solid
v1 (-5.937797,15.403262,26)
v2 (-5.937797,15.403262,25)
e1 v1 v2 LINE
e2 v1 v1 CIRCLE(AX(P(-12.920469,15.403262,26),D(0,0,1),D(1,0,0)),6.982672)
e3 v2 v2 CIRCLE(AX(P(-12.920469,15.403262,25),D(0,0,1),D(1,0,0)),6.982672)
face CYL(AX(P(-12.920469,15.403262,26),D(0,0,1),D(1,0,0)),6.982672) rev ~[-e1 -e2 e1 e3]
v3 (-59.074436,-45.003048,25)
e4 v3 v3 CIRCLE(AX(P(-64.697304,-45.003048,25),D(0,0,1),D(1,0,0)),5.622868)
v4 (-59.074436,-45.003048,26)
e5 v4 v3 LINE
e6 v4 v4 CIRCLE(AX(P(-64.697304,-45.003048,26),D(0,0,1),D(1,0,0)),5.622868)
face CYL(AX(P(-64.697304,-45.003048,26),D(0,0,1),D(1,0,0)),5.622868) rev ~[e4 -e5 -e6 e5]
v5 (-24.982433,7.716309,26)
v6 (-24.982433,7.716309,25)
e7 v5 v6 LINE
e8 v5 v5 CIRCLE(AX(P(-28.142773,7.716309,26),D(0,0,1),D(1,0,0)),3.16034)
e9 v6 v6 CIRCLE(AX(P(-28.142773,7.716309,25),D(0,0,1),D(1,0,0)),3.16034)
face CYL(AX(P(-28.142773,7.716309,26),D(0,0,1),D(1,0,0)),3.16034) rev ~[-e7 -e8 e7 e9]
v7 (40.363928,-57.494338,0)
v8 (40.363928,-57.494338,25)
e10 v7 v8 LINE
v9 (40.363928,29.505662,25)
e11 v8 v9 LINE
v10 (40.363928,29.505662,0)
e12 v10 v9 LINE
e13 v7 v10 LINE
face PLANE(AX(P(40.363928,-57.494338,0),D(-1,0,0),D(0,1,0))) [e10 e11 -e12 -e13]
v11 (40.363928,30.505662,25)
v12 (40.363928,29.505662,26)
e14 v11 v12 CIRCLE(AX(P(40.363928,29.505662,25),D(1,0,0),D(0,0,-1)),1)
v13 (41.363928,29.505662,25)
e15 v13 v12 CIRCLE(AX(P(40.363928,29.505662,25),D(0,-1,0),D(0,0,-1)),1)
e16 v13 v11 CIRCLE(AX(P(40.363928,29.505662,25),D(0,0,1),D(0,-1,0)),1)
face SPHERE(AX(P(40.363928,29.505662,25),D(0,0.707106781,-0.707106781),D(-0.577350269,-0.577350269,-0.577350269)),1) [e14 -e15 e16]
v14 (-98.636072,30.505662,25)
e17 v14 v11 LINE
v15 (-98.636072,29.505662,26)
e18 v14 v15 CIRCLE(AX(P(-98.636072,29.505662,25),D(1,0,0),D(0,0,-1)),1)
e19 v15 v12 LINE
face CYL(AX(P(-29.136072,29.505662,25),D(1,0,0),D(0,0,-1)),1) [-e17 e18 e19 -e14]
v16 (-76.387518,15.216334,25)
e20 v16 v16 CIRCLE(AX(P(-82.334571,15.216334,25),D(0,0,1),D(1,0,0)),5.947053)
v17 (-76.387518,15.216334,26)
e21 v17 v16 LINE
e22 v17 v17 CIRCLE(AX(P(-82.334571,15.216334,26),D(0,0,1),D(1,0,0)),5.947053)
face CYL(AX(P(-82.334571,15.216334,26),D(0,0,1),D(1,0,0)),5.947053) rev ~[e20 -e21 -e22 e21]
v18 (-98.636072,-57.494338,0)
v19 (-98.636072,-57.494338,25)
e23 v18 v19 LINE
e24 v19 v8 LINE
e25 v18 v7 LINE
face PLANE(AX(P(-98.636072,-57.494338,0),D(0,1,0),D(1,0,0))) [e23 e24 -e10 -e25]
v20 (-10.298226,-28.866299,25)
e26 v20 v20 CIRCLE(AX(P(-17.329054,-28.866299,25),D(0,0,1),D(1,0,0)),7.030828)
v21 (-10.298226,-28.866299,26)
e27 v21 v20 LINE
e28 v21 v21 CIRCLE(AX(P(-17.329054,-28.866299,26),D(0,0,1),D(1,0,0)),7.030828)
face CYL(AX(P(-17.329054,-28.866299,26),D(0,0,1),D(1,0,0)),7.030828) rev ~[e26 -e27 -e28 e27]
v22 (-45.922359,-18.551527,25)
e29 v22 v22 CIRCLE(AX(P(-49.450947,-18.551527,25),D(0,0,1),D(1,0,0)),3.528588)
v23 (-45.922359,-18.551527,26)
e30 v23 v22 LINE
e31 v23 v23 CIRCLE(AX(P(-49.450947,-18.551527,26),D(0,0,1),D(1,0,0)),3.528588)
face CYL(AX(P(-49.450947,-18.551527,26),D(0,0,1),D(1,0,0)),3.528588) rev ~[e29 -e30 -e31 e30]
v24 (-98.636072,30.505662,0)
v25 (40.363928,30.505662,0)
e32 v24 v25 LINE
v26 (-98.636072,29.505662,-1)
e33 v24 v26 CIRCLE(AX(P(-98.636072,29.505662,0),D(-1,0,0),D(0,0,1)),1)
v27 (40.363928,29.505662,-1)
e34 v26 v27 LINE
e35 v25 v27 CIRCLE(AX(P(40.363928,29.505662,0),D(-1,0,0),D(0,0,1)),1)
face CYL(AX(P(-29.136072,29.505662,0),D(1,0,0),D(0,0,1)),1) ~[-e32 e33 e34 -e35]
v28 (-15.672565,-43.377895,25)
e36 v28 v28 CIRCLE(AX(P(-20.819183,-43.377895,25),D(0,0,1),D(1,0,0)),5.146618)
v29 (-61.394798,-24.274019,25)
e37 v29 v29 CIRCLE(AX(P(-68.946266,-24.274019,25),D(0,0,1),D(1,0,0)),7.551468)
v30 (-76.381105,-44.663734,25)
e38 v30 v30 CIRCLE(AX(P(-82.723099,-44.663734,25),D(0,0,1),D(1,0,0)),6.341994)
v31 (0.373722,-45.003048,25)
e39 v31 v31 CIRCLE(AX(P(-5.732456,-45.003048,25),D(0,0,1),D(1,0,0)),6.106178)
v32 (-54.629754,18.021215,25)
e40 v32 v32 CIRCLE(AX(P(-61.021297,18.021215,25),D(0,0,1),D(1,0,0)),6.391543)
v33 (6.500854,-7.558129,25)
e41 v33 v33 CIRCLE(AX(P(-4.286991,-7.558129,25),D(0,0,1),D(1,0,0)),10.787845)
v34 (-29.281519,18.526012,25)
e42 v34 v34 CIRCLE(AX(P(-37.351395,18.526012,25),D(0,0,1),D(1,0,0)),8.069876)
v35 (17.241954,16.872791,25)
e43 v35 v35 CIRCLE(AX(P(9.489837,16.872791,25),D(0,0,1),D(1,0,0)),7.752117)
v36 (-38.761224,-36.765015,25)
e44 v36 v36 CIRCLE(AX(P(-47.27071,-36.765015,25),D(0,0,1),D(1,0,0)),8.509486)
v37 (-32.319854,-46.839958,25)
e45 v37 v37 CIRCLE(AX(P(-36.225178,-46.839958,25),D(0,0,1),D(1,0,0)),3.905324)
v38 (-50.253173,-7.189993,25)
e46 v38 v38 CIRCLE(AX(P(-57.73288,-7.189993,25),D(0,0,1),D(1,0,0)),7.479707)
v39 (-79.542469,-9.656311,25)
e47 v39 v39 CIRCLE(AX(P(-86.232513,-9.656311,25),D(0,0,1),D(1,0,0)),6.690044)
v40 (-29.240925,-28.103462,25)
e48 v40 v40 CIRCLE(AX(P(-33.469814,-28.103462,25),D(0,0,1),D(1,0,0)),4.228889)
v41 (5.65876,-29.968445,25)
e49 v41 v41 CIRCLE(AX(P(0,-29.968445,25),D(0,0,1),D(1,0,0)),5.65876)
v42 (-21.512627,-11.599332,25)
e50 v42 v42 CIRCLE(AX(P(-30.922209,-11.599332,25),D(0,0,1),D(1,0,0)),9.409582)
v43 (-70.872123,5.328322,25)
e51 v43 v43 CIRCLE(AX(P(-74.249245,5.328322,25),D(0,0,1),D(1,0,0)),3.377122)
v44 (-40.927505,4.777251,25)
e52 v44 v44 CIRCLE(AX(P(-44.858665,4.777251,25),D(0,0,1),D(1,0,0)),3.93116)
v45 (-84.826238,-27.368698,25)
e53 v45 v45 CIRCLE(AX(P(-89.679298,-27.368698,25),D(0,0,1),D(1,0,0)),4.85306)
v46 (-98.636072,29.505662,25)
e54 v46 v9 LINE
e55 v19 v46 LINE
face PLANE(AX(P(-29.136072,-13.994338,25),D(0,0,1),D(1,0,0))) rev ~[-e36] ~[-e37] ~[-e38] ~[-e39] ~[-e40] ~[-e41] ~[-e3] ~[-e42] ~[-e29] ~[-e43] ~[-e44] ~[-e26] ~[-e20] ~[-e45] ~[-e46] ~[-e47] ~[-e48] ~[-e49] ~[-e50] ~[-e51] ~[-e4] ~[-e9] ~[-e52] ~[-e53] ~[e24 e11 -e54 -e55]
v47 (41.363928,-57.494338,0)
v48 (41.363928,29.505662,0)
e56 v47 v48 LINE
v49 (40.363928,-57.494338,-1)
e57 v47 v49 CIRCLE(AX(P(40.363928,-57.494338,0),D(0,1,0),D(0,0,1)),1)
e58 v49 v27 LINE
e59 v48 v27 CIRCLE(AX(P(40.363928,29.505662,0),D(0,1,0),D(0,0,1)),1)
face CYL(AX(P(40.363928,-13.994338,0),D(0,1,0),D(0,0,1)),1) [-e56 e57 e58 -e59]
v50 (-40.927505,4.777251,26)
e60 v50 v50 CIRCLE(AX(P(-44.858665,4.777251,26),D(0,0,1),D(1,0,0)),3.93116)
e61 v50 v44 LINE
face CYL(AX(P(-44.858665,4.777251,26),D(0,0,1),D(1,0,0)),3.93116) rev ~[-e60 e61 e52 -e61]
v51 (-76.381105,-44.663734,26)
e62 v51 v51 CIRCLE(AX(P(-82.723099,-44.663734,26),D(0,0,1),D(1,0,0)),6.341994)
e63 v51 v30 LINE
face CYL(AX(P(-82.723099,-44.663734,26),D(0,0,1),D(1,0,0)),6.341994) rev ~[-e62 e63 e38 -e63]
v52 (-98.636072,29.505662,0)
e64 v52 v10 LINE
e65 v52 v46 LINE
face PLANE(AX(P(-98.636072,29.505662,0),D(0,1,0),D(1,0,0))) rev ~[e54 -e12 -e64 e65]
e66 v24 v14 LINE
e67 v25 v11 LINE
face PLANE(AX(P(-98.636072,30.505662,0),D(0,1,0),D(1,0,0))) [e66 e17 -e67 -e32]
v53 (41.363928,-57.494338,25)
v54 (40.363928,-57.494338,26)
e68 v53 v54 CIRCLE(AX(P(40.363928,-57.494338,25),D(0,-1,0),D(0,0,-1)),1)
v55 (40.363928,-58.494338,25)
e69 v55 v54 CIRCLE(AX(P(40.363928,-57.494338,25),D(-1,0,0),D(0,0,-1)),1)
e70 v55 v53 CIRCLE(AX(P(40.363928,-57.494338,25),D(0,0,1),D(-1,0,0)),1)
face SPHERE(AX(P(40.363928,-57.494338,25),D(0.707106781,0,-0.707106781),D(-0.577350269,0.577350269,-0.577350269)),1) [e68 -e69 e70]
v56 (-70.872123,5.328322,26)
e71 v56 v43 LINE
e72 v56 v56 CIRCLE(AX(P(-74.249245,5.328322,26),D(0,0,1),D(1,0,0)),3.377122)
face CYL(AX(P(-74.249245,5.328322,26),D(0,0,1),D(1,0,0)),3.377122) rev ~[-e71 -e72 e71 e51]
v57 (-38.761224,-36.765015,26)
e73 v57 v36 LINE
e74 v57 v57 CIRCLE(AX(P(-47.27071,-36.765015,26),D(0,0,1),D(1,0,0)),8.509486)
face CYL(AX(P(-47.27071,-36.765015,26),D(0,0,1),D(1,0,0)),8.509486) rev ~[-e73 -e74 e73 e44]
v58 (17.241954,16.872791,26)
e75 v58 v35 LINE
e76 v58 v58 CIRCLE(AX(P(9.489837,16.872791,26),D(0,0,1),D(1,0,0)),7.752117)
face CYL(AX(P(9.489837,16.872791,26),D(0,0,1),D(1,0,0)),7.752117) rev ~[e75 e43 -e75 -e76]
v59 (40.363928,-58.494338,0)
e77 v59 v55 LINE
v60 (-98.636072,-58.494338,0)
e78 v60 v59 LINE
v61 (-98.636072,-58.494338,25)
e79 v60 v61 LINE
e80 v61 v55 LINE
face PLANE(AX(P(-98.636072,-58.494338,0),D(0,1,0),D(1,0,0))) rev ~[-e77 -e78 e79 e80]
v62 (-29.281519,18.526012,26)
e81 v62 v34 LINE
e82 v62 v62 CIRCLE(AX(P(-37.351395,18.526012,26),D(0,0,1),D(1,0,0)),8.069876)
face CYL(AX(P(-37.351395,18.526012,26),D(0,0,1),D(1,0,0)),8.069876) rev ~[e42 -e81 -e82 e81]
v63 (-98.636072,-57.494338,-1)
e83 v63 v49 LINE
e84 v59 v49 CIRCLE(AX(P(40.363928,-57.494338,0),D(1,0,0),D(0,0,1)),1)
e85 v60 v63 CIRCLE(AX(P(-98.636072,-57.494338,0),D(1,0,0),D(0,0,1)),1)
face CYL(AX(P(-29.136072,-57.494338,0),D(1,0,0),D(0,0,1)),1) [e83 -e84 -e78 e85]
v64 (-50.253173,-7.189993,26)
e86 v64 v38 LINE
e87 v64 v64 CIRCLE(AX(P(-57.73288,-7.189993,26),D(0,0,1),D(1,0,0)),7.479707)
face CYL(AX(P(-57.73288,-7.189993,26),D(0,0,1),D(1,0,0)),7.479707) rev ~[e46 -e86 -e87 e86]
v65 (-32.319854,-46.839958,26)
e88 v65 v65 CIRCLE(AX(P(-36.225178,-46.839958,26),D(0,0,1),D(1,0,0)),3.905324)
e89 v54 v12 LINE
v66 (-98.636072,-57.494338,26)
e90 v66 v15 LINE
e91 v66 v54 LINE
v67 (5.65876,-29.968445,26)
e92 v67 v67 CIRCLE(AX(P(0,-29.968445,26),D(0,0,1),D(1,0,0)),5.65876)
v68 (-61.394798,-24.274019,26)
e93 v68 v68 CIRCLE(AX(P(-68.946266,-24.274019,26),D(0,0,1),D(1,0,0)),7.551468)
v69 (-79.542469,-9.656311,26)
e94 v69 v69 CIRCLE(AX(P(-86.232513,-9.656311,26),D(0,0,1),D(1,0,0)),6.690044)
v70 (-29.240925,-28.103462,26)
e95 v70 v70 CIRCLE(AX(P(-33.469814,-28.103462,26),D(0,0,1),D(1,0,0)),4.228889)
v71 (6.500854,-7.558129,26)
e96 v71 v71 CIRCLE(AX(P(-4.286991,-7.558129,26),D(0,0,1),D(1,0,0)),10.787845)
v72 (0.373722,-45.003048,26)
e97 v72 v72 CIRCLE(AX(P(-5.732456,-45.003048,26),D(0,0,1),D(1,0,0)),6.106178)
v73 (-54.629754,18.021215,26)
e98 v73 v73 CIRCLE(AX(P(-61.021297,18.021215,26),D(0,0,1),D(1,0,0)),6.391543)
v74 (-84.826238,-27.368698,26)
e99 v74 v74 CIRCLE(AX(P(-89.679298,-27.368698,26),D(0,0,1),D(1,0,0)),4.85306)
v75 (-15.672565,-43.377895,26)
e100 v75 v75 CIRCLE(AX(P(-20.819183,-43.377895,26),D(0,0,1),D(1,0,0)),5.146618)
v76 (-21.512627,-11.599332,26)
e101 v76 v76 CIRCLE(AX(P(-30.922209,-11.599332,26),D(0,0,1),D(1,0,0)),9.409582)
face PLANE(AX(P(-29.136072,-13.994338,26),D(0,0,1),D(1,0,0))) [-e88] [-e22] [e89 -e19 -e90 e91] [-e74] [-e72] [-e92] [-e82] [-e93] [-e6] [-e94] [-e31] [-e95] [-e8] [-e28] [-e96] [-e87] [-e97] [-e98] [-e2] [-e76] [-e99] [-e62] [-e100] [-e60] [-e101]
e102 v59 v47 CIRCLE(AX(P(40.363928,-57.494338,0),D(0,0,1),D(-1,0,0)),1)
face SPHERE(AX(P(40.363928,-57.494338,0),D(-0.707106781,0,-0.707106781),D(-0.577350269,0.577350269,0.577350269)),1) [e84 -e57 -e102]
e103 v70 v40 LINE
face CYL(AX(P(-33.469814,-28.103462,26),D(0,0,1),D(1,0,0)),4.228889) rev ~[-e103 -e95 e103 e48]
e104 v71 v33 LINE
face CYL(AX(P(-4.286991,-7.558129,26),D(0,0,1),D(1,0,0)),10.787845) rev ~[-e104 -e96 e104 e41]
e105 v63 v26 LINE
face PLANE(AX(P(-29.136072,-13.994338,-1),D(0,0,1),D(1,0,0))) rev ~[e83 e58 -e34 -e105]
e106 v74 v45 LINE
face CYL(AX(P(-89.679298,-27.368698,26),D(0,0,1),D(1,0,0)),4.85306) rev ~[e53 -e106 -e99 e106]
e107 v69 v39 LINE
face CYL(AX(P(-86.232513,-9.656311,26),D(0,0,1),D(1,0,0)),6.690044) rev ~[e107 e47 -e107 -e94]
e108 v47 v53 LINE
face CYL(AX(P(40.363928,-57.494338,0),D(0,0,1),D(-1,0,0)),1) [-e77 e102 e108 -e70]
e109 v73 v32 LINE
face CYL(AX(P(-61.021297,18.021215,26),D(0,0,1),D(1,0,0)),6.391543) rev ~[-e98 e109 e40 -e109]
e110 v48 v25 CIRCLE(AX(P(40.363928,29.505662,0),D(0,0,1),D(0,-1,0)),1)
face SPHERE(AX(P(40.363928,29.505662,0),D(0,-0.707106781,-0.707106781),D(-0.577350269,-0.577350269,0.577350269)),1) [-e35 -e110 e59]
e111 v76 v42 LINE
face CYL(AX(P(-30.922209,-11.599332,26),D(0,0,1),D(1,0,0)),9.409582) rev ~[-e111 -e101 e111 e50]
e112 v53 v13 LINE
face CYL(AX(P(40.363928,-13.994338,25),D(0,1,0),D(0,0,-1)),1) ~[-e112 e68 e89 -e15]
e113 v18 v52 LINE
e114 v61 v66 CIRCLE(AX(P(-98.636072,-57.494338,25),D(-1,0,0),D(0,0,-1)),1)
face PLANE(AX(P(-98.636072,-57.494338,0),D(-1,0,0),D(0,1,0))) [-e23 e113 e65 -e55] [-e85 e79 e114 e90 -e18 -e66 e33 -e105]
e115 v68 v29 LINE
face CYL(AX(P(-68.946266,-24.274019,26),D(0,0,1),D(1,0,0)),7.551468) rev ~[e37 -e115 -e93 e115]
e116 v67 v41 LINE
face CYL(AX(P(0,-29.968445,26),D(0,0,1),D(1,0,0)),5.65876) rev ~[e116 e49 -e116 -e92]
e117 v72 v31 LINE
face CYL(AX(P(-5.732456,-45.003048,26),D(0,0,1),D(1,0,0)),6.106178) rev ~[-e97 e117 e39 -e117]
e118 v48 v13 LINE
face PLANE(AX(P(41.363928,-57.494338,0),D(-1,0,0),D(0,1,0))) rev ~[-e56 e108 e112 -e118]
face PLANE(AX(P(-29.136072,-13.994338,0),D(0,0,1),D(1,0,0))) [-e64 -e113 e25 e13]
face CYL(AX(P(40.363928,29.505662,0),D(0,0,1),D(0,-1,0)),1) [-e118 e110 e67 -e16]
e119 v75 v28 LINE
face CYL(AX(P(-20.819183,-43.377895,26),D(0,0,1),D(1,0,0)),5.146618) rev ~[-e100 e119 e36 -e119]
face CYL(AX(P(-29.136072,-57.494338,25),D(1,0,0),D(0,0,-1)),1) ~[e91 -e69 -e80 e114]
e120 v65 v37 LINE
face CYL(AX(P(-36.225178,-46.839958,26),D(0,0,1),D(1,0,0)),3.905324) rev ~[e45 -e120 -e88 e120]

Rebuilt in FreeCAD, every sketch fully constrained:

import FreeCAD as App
import Part
import Sketcher

V = App.Vector


def faces_at(feature, points):
    """Names of the faces that lie closest to the given points."""
    faces = feature.Shape.Faces
    near = lambda p: min(range(len(faces)), key=lambda i: faces[i].distToShape(Part.Vertex(*p))[0])
    return sorted({f"Face{near(p) + 1}" for p in points})


def add_polygon(sketch, points):
    """Adds a closed chain of lines whose ends are joined by coincident constraints."""
    first, n = sketch.GeometryCount, len(points)
    for a, b in zip(points, points[1:] + points[:1]):
        sketch.addGeometry(Part.LineSegment(App.Vector(*a, 0), App.Vector(*b, 0)), False)
    for i in range(n):
        sketch.addConstraint(Sketcher.Constraint("Coincident", first + i, 2, first + (i + 1) % n, 1))

doc = App.newDocument("Part")
body = doc.addObject("PartDesign::Body", "Body")

# Sketch on XY plane
sketch1 = body.newObject("Sketcher::SketchObject", "Sketch")
sketch1.AttachmentSupport = (doc.getObject("XY_Plane"), [""])
sketch1.MapMode = "FlatFace"
add_polygon(sketch1, [(-99, 30), (-99, -57), (40, -57), (40, 30)])  # lines 0-3
sketch1.addConstraint([
    Sketcher.Constraint("Vertical", 0),
    Sketcher.Constraint("Horizontal", 1),
    Sketcher.Constraint("Vertical", 2),
    Sketcher.Constraint("Horizontal", 3),
    Sketcher.Constraint("DistanceX", 1, 1, 1, 2, 139.0),
    Sketcher.Constraint("DistanceY", 0, 2, 0, 1, 87.0),
    Sketcher.Constraint("DistanceX", 0, 2, -1, 1, 98.636072),
    Sketcher.Constraint("DistanceY", 0, 2, -1, 1, 57.494338),
])
pad1 = body.newObject("PartDesign::Pad", "Pad")
pad1.Profile = sketch1
pad1.Length = 25
doc.recompute()

thickness = body.newObject("PartDesign::Thickness", "Thickness")
thickness.Base = (pad1, faces_at(pad1, [(-98.636, -13.994, 12.5)]))
thickness.Value = 1
thickness.Reversed = False
thickness.Join = "Arc"

# Sketch on XY plane
sketch2 = body.newObject("Sketcher::SketchObject", "Sketch001")
sketch2.AttachmentSupport = (doc.getObject("XY_Plane"), [""])
sketch2.MapMode = "FlatFace"
sketch2.AttachmentOffset = App.Placement(V(0, 0, 26), App.Rotation())
sketch2.addGeometry([
    Part.Circle(V(-82.3, 15.2, 0), V(0, 0, 1), 5.9),  # 0
    Part.Circle(V(-61, 18, 0), V(0, 0, 1), 6.4),  # 1
    Part.Circle(V(-57.7, -7.2, 0), V(0, 0, 1), 7.5),  # 2
    Part.Circle(V(-86.2, -9.7, 0), V(0, 0, 1), 6.7),  # 3
    Part.Circle(V(-68.9, -24.3, 0), V(0, 0, 1), 7.6),  # 4
    Part.Circle(V(-82.7, -44.7, 0), V(0, 0, 1), 6.3),  # 5
    Part.Circle(V(-47.3, -36.8, 0), V(0, 0, 1), 8.5),  # 6
    Part.Circle(V(-30.9, -11.6, 0), V(0, 0, 1), 9.4),  # 7
    Part.Circle(V(-37.4, 18.5, 0), V(0, 0, 1), 8.1),  # 8
    Part.Circle(V(-17.3, -28.9, 0), V(0, 0, 1), 7),  # 9
    Part.Circle(V(-20.8, -43.4, 0), V(0, 0, 1), 5.1),  # 10
    Part.Circle(V(-12.9, 15.4, 0), V(0, 0, 1), 7),  # 11
    Part.Circle(V(9.5, 16.9, 0), V(0, 0, 1), 7.8),  # 12
    Part.Circle(V(-4.3, -7.6, 0), V(0, 0, 1), 10.8),  # 13
    Part.Circle(V(0, -30, 0), V(0, 0, 1), 5.7),  # 14
    Part.Circle(V(-44.9, 4.8, 0), V(0, 0, 1), 3.9),  # 15
    Part.Circle(V(-74.2, 5.3, 0), V(0, 0, 1), 3.4),  # 16
    Part.Circle(V(-64.7, -45, 0), V(0, 0, 1), 5.6),  # 17
    Part.Circle(V(-36.2, -46.8, 0), V(0, 0, 1), 3.9),  # 18
    Part.Circle(V(-33.5, -28.1, 0), V(0, 0, 1), 4.2),  # 19
    Part.Circle(V(-49.5, -18.6, 0), V(0, 0, 1), 3.5),  # 20
    Part.Circle(V(-28.1, 7.7, 0), V(0, 0, 1), 3.2),  # 21
    Part.Circle(V(-5.7, -45, 0), V(0, 0, 1), 6.1),  # 22
    Part.Circle(V(-89.7, -27.4, 0), V(0, 0, 1), 4.9),  # 23
], False)
sketch2.addConstraint([
    Sketcher.Constraint("PointOnObject", 14, 3, -2),
    Sketcher.Constraint("Horizontal", 17, 3, 22, 3),
    Sketcher.Constraint("Diameter", 3, 13.380088),
    Sketcher.Constraint("Diameter", 13, 21.57569),
    Sketcher.Constraint("Diameter", 14, 11.31752),
    Sketcher.Constraint("Diameter", 15, 7.86232),
    Sketcher.Constraint("Diameter", 21, 6.32068),
    Sketcher.Constraint("Diameter", 23, 9.70612),
    Sketcher.Constraint("Diameter", 0, 11.894106),
    Sketcher.Constraint("Diameter", 1, 12.783086),
    Sketcher.Constraint("Diameter", 2, 14.959414),
    Sketcher.Constraint("Diameter", 4, 15.102936),
    Sketcher.Constraint("Diameter", 5, 12.683988),
    Sketcher.Constraint("Diameter", 6, 17.018972),
    Sketcher.Constraint("Diameter", 7, 18.819164),
    Sketcher.Constraint("Diameter", 8, 16.139752),
    Sketcher.Constraint("Diameter", 9, 14.061656),
    Sketcher.Constraint("Diameter", 10, 10.293236),
    Sketcher.Constraint("Diameter", 11, 13.965344),
    Sketcher.Constraint("Diameter", 12, 15.504234),
    Sketcher.Constraint("Diameter", 16, 6.754244),
    Sketcher.Constraint("Diameter", 17, 11.245736),
    Sketcher.Constraint("Diameter", 18, 7.810648),
    Sketcher.Constraint("Diameter", 19, 8.457778),
    Sketcher.Constraint("Diameter", 20, 7.057176),
    Sketcher.Constraint("Diameter", 22, 12.212356),
    Sketcher.Constraint("DistanceX", 5, 3, -1, 1, 82.723099),
    Sketcher.Constraint("DistanceY", 9, 3, -1, 1, 28.866299),
    Sketcher.Constraint("DistanceX", 23, 3, -1, 1, 89.679298),
    Sketcher.Constraint("DistanceX", 6, 3, 7, 3, 16.348501),
    Sketcher.Constraint("DistanceX", 0, 3, -1, 1, 82.334571),
    Sketcher.Constraint("DistanceX", 2, 3, -1, 1, 57.73288),
    Sketcher.Constraint("DistanceY", 3, 3, -1, 1, 9.656311),
    Sketcher.Constraint("DistanceY", 4, 3, -1, 1, 24.274019),
    Sketcher.Constraint("DistanceX", 6, 3, -1, 1, 47.27071),
    Sketcher.Constraint("DistanceX", 11, 3, -1, 1, 12.920469),
    Sketcher.Constraint("DistanceY", -1, 1, 12, 3, 16.872791),
    Sketcher.Constraint("DistanceX", 13, 3, -1, 1, 4.286991),
    Sketcher.Constraint("DistanceY", 13, 3, -1, 1, 7.558129),
    Sketcher.Constraint("DistanceY", -1, 1, 15, 3, 4.777251),
    Sketcher.Constraint("DistanceY", 18, 3, -1, 1, 46.839958),
    Sketcher.Constraint("DistanceY", -1, 1, 21, 3, 7.716309),
    Sketcher.Constraint("DistanceY", 0, 3, 1, 3, 2.804881),
    Sketcher.Constraint("DistanceY", 2, 3, 1, 3, 25.211208),
    Sketcher.Constraint("DistanceY", 3, 3, 2, 3, 2.466318),
    Sketcher.Constraint("DistanceX", 4, 3, 1, 3, 7.924969),
    Sketcher.Constraint("DistanceY", 5, 3, 2, 3, 37.473741),
    Sketcher.Constraint("DistanceY", 6, 3, 2, 3, 29.575022),
    Sketcher.Constraint("DistanceY", 7, 3, 2, 3, 4.409339),
    Sketcher.Constraint("DistanceY", 0, 3, 8, 3, 3.309678),
    Sketcher.Constraint("DistanceX", 4, 3, 8, 3, 31.594871),
    Sketcher.Constraint("DistanceX", 8, 3, 9, 3, 20.022341),
    Sketcher.Constraint("DistanceX", 10, 3, 9, 3, 3.490129),
    Sketcher.Constraint("DistanceY", 10, 3, 6, 3, 6.61288),
    Sketcher.Constraint("DistanceY", 11, 3, 8, 3, 3.12275),
    Sketcher.Constraint("DistanceX", 8, 3, 12, 3, 46.841232),
    Sketcher.Constraint("DistanceX", 10, 3, 13, 3, 16.532192),
    Sketcher.Constraint("DistanceY", 10, 3, 14, 3, 13.40945),
    Sketcher.Constraint("DistanceX", 15, 3, 8, 3, 7.50727),
    Sketcher.Constraint("DistanceX", 16, 3, 1, 3, 13.227948),
    Sketcher.Constraint("DistanceY", 15, 3, 16, 3, 0.551071),
    Sketcher.Constraint("DistanceX", 4, 3, 17, 3, 4.248962),
    Sketcher.Constraint("DistanceY", 17, 3, 4, 3, 20.729029),
    Sketcher.Constraint("DistanceX", 3, 3, 17, 3, 21.535209),
    Sketcher.Constraint("DistanceX", 18, 3, 7, 3, 5.302969),
    Sketcher.Constraint("DistanceX", 19, 3, 9, 3, 16.14076),
    Sketcher.Constraint("DistanceY", 19, 3, 7, 3, 16.50413),
    Sketcher.Constraint("DistanceX", 20, 3, 7, 3, 18.528738),
    Sketcher.Constraint("DistanceY", 4, 3, 20, 3, 5.722492),
    Sketcher.Constraint("DistanceX", 8, 3, 21, 3, 9.208622),
    Sketcher.Constraint("DistanceX", 19, 3, 22, 3, 27.737358),
    Sketcher.Constraint("DistanceY", 23, 3, 4, 3, 3.094679),
])
pocket1 = body.newObject("PartDesign::Pocket", "Pocket")
pocket1.Profile = sketch2
pocket1.Length = 5

doc.recompute()
